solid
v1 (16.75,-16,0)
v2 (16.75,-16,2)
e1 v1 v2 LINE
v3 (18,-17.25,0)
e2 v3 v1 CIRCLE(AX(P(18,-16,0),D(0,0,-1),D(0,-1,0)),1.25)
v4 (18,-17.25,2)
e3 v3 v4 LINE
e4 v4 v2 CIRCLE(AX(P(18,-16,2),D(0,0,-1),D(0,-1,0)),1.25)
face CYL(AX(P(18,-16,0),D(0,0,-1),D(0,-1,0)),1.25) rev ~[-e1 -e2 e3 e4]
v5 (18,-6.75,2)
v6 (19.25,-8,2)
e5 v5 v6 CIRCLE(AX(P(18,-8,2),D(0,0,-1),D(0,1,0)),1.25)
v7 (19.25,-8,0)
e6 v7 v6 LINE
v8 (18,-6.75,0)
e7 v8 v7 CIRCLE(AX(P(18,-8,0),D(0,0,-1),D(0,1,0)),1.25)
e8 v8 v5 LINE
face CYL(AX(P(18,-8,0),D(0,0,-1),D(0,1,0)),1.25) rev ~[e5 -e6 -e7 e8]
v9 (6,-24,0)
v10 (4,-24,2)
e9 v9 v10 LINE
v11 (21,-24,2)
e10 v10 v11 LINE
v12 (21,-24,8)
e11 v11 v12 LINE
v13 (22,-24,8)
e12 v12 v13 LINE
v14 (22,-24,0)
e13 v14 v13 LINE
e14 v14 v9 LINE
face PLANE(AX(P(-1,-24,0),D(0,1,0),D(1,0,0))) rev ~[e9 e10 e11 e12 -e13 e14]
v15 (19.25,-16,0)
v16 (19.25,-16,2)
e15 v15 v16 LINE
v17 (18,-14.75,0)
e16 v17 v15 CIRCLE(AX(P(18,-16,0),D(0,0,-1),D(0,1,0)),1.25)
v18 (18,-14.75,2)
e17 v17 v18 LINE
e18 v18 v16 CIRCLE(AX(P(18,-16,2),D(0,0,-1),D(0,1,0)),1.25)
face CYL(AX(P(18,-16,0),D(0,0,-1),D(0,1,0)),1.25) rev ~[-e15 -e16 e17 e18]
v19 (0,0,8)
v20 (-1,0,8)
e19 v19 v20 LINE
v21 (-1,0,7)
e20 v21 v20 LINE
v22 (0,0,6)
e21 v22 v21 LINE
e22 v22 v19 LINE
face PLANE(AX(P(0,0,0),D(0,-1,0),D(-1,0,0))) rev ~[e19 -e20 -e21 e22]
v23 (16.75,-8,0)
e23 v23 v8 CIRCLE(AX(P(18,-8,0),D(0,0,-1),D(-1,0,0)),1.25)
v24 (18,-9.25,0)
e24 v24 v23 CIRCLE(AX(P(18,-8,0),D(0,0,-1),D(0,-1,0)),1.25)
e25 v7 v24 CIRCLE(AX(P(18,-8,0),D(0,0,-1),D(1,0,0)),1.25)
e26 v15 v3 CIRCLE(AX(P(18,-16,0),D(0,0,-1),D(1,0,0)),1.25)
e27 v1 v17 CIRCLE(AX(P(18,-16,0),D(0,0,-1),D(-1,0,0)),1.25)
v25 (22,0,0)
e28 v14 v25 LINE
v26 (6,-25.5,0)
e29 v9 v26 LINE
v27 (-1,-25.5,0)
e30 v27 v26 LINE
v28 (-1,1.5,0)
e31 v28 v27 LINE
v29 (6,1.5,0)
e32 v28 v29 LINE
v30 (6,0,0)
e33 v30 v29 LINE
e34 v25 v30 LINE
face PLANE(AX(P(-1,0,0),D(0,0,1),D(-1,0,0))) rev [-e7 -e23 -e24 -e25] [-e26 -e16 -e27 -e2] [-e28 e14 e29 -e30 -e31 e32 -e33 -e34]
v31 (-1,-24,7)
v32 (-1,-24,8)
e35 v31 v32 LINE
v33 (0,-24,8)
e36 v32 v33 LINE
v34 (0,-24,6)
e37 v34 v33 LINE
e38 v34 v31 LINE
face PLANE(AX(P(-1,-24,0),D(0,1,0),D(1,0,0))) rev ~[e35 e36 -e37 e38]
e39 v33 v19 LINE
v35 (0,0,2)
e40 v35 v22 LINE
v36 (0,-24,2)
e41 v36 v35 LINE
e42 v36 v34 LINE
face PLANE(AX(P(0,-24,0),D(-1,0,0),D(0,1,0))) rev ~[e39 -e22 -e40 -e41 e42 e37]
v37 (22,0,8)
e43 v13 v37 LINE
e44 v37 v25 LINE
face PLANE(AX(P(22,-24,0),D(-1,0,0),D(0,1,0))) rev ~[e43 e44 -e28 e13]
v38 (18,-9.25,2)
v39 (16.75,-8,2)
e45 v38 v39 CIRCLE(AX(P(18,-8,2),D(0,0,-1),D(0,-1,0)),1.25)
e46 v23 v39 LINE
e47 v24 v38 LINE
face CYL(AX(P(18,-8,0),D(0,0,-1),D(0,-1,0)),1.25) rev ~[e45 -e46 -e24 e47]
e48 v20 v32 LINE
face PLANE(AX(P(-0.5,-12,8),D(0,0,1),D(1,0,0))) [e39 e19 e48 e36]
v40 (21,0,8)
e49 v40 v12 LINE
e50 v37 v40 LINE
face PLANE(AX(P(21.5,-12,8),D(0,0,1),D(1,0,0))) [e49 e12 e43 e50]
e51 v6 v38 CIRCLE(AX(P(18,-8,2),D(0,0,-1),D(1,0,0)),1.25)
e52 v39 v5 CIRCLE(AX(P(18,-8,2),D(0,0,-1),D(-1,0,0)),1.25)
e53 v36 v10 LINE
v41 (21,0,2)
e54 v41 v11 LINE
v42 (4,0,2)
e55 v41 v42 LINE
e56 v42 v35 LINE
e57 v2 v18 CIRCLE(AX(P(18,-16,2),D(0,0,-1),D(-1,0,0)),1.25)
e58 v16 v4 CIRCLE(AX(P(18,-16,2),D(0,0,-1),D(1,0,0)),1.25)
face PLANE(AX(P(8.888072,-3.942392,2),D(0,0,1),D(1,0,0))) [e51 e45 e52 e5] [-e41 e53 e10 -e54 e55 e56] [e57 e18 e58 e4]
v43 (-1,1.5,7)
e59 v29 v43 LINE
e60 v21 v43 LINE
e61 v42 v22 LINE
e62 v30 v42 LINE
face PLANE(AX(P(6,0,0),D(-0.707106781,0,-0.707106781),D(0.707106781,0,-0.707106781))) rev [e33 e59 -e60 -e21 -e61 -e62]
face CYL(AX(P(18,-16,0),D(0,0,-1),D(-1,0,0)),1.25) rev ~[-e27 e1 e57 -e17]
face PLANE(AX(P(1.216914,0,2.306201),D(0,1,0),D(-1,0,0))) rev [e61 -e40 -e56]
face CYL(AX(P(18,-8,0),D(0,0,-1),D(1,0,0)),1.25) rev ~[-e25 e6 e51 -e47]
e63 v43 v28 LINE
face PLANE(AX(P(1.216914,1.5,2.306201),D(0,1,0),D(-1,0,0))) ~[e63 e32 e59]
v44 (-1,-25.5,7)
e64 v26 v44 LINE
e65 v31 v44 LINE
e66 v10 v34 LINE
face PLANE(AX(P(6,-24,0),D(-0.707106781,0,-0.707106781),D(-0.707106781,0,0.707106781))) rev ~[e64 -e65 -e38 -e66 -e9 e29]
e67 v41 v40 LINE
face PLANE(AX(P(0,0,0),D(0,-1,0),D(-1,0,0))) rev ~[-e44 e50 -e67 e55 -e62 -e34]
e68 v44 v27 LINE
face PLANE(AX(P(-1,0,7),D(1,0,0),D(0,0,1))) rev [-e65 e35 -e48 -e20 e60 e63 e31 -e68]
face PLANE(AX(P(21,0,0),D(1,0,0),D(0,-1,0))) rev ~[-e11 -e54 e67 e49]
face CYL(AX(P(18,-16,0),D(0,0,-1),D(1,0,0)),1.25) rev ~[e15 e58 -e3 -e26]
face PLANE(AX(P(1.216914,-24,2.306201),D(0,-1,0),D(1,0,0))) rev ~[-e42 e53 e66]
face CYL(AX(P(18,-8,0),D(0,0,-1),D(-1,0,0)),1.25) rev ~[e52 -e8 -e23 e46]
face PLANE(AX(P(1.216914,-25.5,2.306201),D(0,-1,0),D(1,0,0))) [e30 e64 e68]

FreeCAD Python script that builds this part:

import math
import FreeCAD as App
import Part
import Sketcher

V = App.Vector


def add_polygon(sketch, points):
    """Adds a closed chain of lines whose ends are joined by coincident constraints."""
    first, n = sketch.GeometryCount, len(points)
    for a, b in zip(points, points[1:] + points[:1]):
        sketch.addGeometry(Part.LineSegment(App.Vector(*a, 0), App.Vector(*b, 0)), False)
    for i in range(n):
        sketch.addConstraint(Sketcher.Constraint("Coincident", first + i, 2, first + (i + 1) % n, 1))

doc = App.newDocument("Part")
body = doc.addObject("PartDesign::Body", "Body")

sketch1 = doc.addObject("Sketcher::SketchObject", "Sketch")
body.addObject(sketch1)
sketch1.AttachmentSupport = (doc.XY_Plane, [""])
sketch1.MapMode = "FlatFace"
add_polygon(sketch1, [(0, 0), (-1, 0), (-1, -24), (0, -24)])
sketch1.addConstraint([
    Sketcher.Constraint("Horizontal", 0),
    Sketcher.Constraint("Vertical", 1),
    Sketcher.Constraint("Horizontal", 2),
    Sketcher.Constraint("Vertical", 3),
    Sketcher.Constraint("Coincident", 3, 2, -1, 1),
    Sketcher.Constraint("DistanceX", 0, 2, 0, 1, 1.0),
    Sketcher.Constraint("DistanceY", 1, 2, 1, 1, 24.0),
])
pad1 = doc.addObject("PartDesign::Pad", "Pad")
body.addObject(pad1)
pad1.Profile = sketch1
pad1.Length = 8
body2 = doc.addObject("PartDesign::Body", "Body001")

sketch2 = doc.addObject("Sketcher::SketchObject", "Sketch001")
body2.addObject(sketch2)
sketch2.AttachmentSupport = (doc.getObject("XY_Plane001"), [""])
sketch2.MapMode = "FlatFace"
add_polygon(sketch2, [(22, 0), (21, 0), (21, -24), (22, -24)])
sketch2.addConstraint([
    Sketcher.Constraint("Horizontal", 0),
    Sketcher.Constraint("Vertical", 1),
    Sketcher.Constraint("Horizontal", 2),
    Sketcher.Constraint("Vertical", 3),
    Sketcher.Constraint("PointOnObject", 0, 2, -1),
    Sketcher.Constraint("DistanceX", 0, 2, 0, 1, 1.0),
    Sketcher.Constraint("DistanceY", 1, 2, 1, 1, 24.0),
    Sketcher.Constraint("DistanceX", -1, 1, 0, 2, 21.0),
])
pad2 = doc.addObject("PartDesign::Pad", "Pad001")
body2.addObject(pad2)
pad2.Profile = sketch2
pad2.Length = 8
body.AllowCompound = True
doc.recompute()

boolean = doc.addObject("PartDesign::Boolean", "Boolean")
body.addObject(boolean)
boolean.Type = "Fuse"
boolean.addObjects([body2])

sketch3 = doc.addObject("Sketcher::SketchObject", "Sketch002")
body.addObject(sketch3)
sketch3.AttachmentSupport = (doc.XY_Plane, [""])
sketch3.MapMode = "FlatFace"
add_polygon(sketch3, [(-1, 0), (-1, -24), (22, -24), (22, 0)])
sketch3.addGeometry(Part.ArcOfCircle(Part.Circle(V(18, -16, 0), V(0, 0, 1), 1.2), math.radians(180), math.radians(270)), False)
sketch3.addGeometry(Part.ArcOfCircle(Part.Circle(V(18, -16, 0), V(0, 0, 1), 1.2), math.radians(90), math.radians(180)), False)
sketch3.addGeometry(Part.ArcOfCircle(Part.Circle(V(18, -16, 0), V(0, 0, 1), 1.2), math.radians(0), math.radians(90)), False)
sketch3.addGeometry(Part.ArcOfCircle(Part.Circle(V(18, -16, 0), V(0, 0, 1), 1.2), math.radians(-90), math.radians(0)), False)
sketch3.addGeometry(Part.ArcOfCircle(Part.Circle(V(18, -8, 0), V(0, 0, 1), 1.2), math.radians(90), math.radians(180)), False)
sketch3.addGeometry(Part.ArcOfCircle(Part.Circle(V(18, -8, 0), V(0, 0, 1), 1.2), math.radians(0), math.radians(90)), False)
sketch3.addGeometry(Part.ArcOfCircle(Part.Circle(V(18, -8, 0), V(0, 0, 1), 1.2), math.radians(-90), math.radians(0)), False)
sketch3.addGeometry(Part.ArcOfCircle(Part.Circle(V(18, -8, 0), V(0, 0, 1), 1.2), math.radians(180), math.radians(270)), False)
sketch3.addConstraint([
    Sketcher.Constraint("Tangent", 4, 1, 5, 2),
    Sketcher.Constraint("Tangent", 5, 1, 6, 2),
    Sketcher.Constraint("Tangent", 6, 1, 7, 2),
    Sketcher.Constraint("Tangent", 7, 1, 4, 2),
    Sketcher.Constraint("Tangent", 8, 1, 9, 2),
    Sketcher.Constraint("Tangent", 9, 1, 10, 2),
    Sketcher.Constraint("Tangent", 10, 1, 11, 2),
    Sketcher.Constraint("Tangent", 11, 1, 8, 2),
    Sketcher.Constraint("Vertical", 0),
    Sketcher.Constraint("Horizontal", 1),
    Sketcher.Constraint("Vertical", 2),
    Sketcher.Constraint("Horizontal", 3),
    Sketcher.Constraint("Equal", 4, 5),
    Sketcher.Constraint("Equal", 7, 8),
    Sketcher.Constraint("Equal", 8, 9),
    Sketcher.Constraint("PointOnObject", 2, 2, -1),
    Sketcher.Constraint("Horizontal", 7, 3, 4, 1),
    Sketcher.Constraint("Horizontal", 4, 1, 6, 1),
    Sketcher.Constraint("Horizontal", 11, 3, 9, 1),
    Sketcher.Constraint("Horizontal", 9, 1, 11, 1),
    Sketcher.Constraint("Vertical", 7, 3, 8, 3),
    Sketcher.Constraint("Vertical", 11, 3, 5, 1),
    Sketcher.Constraint("Vertical", 5, 1, 7, 1),
    Sketcher.Constraint("Vertical", 7, 1, 8, 1),
    Sketcher.Constraint("Vertical", 8, 1, 10, 1),
    Sketcher.Constraint("DistanceX", 1, 1, 1, 2, 23.0),
    Sketcher.Constraint("DistanceY", 0, 2, 0, 1, 24.0),
    Sketcher.Constraint("Radius", 4, 1.25),
    Sketcher.Constraint("DistanceX", -1, 1, 4, 3, 18.0),
    Sketcher.Constraint("DistanceY", 4, 3, -1, 1, 16.0),
    Sketcher.Constraint("DistanceY", 8, 3, -1, 1, 8.0),
    Sketcher.Constraint("DistanceX", 0, 2, -1, 1, 1.0),
])
pad3 = doc.addObject("PartDesign::Pad", "Pad002")
body.addObject(pad3)
pad3.Profile = sketch3
pad3.Length = 2

sketch4 = doc.addObject("Sketcher::SketchObject", "Sketch003")
body.addObject(sketch4)
sketch4.AttachmentSupport = (doc.XZ_Plane, [""])
sketch4.MapMode = "FlatFace"
sketch4.AttachmentOffset = App.Placement(V(0, 0, 24), App.Rotation())
add_polygon(sketch4, [(-1, 7), (-1, 0), (6, 0)])
sketch4.addConstraint([
    Sketcher.Constraint("Vertical", 0),
    Sketcher.Constraint("Horizontal", 1),
    Sketcher.Constraint("PointOnObject", 0, 2, -1),
    Sketcher.Constraint("Equal", 1, 0),
    Sketcher.Constraint("DistanceX", 1, 1, 1, 2, 7.0),
    Sketcher.Constraint("DistanceX", 0, 2, -1, 1, 1.0),
])
pad4 = doc.addObject("PartDesign::Pad", "Pad003")
body.addObject(pad4)
pad4.Profile = sketch4
pad4.Length = 1.5
body3 = doc.addObject("PartDesign::Body", "Body002")
doc.recompute()

body3.BaseFeature = body
doc.recompute()

mirroring = doc.addObject("Part::Mirroring", "Mirroring")
mirroring.Source = body
mirroring.Base = V(0, -12, 0)
mirroring.Normal = V(0, -1, 0)
body4 = doc.addObject("PartDesign::Body", "Body003")
body4.BaseFeature = mirroring
boolean2 = doc.addObject("PartDesign::Boolean", "Boolean001")
body3.addObject(boolean2)
boolean2.Type = "Fuse"
boolean2.addObjects([body4])
doc.recompute()
mirroring.Visibility = False

doc.recompute()
